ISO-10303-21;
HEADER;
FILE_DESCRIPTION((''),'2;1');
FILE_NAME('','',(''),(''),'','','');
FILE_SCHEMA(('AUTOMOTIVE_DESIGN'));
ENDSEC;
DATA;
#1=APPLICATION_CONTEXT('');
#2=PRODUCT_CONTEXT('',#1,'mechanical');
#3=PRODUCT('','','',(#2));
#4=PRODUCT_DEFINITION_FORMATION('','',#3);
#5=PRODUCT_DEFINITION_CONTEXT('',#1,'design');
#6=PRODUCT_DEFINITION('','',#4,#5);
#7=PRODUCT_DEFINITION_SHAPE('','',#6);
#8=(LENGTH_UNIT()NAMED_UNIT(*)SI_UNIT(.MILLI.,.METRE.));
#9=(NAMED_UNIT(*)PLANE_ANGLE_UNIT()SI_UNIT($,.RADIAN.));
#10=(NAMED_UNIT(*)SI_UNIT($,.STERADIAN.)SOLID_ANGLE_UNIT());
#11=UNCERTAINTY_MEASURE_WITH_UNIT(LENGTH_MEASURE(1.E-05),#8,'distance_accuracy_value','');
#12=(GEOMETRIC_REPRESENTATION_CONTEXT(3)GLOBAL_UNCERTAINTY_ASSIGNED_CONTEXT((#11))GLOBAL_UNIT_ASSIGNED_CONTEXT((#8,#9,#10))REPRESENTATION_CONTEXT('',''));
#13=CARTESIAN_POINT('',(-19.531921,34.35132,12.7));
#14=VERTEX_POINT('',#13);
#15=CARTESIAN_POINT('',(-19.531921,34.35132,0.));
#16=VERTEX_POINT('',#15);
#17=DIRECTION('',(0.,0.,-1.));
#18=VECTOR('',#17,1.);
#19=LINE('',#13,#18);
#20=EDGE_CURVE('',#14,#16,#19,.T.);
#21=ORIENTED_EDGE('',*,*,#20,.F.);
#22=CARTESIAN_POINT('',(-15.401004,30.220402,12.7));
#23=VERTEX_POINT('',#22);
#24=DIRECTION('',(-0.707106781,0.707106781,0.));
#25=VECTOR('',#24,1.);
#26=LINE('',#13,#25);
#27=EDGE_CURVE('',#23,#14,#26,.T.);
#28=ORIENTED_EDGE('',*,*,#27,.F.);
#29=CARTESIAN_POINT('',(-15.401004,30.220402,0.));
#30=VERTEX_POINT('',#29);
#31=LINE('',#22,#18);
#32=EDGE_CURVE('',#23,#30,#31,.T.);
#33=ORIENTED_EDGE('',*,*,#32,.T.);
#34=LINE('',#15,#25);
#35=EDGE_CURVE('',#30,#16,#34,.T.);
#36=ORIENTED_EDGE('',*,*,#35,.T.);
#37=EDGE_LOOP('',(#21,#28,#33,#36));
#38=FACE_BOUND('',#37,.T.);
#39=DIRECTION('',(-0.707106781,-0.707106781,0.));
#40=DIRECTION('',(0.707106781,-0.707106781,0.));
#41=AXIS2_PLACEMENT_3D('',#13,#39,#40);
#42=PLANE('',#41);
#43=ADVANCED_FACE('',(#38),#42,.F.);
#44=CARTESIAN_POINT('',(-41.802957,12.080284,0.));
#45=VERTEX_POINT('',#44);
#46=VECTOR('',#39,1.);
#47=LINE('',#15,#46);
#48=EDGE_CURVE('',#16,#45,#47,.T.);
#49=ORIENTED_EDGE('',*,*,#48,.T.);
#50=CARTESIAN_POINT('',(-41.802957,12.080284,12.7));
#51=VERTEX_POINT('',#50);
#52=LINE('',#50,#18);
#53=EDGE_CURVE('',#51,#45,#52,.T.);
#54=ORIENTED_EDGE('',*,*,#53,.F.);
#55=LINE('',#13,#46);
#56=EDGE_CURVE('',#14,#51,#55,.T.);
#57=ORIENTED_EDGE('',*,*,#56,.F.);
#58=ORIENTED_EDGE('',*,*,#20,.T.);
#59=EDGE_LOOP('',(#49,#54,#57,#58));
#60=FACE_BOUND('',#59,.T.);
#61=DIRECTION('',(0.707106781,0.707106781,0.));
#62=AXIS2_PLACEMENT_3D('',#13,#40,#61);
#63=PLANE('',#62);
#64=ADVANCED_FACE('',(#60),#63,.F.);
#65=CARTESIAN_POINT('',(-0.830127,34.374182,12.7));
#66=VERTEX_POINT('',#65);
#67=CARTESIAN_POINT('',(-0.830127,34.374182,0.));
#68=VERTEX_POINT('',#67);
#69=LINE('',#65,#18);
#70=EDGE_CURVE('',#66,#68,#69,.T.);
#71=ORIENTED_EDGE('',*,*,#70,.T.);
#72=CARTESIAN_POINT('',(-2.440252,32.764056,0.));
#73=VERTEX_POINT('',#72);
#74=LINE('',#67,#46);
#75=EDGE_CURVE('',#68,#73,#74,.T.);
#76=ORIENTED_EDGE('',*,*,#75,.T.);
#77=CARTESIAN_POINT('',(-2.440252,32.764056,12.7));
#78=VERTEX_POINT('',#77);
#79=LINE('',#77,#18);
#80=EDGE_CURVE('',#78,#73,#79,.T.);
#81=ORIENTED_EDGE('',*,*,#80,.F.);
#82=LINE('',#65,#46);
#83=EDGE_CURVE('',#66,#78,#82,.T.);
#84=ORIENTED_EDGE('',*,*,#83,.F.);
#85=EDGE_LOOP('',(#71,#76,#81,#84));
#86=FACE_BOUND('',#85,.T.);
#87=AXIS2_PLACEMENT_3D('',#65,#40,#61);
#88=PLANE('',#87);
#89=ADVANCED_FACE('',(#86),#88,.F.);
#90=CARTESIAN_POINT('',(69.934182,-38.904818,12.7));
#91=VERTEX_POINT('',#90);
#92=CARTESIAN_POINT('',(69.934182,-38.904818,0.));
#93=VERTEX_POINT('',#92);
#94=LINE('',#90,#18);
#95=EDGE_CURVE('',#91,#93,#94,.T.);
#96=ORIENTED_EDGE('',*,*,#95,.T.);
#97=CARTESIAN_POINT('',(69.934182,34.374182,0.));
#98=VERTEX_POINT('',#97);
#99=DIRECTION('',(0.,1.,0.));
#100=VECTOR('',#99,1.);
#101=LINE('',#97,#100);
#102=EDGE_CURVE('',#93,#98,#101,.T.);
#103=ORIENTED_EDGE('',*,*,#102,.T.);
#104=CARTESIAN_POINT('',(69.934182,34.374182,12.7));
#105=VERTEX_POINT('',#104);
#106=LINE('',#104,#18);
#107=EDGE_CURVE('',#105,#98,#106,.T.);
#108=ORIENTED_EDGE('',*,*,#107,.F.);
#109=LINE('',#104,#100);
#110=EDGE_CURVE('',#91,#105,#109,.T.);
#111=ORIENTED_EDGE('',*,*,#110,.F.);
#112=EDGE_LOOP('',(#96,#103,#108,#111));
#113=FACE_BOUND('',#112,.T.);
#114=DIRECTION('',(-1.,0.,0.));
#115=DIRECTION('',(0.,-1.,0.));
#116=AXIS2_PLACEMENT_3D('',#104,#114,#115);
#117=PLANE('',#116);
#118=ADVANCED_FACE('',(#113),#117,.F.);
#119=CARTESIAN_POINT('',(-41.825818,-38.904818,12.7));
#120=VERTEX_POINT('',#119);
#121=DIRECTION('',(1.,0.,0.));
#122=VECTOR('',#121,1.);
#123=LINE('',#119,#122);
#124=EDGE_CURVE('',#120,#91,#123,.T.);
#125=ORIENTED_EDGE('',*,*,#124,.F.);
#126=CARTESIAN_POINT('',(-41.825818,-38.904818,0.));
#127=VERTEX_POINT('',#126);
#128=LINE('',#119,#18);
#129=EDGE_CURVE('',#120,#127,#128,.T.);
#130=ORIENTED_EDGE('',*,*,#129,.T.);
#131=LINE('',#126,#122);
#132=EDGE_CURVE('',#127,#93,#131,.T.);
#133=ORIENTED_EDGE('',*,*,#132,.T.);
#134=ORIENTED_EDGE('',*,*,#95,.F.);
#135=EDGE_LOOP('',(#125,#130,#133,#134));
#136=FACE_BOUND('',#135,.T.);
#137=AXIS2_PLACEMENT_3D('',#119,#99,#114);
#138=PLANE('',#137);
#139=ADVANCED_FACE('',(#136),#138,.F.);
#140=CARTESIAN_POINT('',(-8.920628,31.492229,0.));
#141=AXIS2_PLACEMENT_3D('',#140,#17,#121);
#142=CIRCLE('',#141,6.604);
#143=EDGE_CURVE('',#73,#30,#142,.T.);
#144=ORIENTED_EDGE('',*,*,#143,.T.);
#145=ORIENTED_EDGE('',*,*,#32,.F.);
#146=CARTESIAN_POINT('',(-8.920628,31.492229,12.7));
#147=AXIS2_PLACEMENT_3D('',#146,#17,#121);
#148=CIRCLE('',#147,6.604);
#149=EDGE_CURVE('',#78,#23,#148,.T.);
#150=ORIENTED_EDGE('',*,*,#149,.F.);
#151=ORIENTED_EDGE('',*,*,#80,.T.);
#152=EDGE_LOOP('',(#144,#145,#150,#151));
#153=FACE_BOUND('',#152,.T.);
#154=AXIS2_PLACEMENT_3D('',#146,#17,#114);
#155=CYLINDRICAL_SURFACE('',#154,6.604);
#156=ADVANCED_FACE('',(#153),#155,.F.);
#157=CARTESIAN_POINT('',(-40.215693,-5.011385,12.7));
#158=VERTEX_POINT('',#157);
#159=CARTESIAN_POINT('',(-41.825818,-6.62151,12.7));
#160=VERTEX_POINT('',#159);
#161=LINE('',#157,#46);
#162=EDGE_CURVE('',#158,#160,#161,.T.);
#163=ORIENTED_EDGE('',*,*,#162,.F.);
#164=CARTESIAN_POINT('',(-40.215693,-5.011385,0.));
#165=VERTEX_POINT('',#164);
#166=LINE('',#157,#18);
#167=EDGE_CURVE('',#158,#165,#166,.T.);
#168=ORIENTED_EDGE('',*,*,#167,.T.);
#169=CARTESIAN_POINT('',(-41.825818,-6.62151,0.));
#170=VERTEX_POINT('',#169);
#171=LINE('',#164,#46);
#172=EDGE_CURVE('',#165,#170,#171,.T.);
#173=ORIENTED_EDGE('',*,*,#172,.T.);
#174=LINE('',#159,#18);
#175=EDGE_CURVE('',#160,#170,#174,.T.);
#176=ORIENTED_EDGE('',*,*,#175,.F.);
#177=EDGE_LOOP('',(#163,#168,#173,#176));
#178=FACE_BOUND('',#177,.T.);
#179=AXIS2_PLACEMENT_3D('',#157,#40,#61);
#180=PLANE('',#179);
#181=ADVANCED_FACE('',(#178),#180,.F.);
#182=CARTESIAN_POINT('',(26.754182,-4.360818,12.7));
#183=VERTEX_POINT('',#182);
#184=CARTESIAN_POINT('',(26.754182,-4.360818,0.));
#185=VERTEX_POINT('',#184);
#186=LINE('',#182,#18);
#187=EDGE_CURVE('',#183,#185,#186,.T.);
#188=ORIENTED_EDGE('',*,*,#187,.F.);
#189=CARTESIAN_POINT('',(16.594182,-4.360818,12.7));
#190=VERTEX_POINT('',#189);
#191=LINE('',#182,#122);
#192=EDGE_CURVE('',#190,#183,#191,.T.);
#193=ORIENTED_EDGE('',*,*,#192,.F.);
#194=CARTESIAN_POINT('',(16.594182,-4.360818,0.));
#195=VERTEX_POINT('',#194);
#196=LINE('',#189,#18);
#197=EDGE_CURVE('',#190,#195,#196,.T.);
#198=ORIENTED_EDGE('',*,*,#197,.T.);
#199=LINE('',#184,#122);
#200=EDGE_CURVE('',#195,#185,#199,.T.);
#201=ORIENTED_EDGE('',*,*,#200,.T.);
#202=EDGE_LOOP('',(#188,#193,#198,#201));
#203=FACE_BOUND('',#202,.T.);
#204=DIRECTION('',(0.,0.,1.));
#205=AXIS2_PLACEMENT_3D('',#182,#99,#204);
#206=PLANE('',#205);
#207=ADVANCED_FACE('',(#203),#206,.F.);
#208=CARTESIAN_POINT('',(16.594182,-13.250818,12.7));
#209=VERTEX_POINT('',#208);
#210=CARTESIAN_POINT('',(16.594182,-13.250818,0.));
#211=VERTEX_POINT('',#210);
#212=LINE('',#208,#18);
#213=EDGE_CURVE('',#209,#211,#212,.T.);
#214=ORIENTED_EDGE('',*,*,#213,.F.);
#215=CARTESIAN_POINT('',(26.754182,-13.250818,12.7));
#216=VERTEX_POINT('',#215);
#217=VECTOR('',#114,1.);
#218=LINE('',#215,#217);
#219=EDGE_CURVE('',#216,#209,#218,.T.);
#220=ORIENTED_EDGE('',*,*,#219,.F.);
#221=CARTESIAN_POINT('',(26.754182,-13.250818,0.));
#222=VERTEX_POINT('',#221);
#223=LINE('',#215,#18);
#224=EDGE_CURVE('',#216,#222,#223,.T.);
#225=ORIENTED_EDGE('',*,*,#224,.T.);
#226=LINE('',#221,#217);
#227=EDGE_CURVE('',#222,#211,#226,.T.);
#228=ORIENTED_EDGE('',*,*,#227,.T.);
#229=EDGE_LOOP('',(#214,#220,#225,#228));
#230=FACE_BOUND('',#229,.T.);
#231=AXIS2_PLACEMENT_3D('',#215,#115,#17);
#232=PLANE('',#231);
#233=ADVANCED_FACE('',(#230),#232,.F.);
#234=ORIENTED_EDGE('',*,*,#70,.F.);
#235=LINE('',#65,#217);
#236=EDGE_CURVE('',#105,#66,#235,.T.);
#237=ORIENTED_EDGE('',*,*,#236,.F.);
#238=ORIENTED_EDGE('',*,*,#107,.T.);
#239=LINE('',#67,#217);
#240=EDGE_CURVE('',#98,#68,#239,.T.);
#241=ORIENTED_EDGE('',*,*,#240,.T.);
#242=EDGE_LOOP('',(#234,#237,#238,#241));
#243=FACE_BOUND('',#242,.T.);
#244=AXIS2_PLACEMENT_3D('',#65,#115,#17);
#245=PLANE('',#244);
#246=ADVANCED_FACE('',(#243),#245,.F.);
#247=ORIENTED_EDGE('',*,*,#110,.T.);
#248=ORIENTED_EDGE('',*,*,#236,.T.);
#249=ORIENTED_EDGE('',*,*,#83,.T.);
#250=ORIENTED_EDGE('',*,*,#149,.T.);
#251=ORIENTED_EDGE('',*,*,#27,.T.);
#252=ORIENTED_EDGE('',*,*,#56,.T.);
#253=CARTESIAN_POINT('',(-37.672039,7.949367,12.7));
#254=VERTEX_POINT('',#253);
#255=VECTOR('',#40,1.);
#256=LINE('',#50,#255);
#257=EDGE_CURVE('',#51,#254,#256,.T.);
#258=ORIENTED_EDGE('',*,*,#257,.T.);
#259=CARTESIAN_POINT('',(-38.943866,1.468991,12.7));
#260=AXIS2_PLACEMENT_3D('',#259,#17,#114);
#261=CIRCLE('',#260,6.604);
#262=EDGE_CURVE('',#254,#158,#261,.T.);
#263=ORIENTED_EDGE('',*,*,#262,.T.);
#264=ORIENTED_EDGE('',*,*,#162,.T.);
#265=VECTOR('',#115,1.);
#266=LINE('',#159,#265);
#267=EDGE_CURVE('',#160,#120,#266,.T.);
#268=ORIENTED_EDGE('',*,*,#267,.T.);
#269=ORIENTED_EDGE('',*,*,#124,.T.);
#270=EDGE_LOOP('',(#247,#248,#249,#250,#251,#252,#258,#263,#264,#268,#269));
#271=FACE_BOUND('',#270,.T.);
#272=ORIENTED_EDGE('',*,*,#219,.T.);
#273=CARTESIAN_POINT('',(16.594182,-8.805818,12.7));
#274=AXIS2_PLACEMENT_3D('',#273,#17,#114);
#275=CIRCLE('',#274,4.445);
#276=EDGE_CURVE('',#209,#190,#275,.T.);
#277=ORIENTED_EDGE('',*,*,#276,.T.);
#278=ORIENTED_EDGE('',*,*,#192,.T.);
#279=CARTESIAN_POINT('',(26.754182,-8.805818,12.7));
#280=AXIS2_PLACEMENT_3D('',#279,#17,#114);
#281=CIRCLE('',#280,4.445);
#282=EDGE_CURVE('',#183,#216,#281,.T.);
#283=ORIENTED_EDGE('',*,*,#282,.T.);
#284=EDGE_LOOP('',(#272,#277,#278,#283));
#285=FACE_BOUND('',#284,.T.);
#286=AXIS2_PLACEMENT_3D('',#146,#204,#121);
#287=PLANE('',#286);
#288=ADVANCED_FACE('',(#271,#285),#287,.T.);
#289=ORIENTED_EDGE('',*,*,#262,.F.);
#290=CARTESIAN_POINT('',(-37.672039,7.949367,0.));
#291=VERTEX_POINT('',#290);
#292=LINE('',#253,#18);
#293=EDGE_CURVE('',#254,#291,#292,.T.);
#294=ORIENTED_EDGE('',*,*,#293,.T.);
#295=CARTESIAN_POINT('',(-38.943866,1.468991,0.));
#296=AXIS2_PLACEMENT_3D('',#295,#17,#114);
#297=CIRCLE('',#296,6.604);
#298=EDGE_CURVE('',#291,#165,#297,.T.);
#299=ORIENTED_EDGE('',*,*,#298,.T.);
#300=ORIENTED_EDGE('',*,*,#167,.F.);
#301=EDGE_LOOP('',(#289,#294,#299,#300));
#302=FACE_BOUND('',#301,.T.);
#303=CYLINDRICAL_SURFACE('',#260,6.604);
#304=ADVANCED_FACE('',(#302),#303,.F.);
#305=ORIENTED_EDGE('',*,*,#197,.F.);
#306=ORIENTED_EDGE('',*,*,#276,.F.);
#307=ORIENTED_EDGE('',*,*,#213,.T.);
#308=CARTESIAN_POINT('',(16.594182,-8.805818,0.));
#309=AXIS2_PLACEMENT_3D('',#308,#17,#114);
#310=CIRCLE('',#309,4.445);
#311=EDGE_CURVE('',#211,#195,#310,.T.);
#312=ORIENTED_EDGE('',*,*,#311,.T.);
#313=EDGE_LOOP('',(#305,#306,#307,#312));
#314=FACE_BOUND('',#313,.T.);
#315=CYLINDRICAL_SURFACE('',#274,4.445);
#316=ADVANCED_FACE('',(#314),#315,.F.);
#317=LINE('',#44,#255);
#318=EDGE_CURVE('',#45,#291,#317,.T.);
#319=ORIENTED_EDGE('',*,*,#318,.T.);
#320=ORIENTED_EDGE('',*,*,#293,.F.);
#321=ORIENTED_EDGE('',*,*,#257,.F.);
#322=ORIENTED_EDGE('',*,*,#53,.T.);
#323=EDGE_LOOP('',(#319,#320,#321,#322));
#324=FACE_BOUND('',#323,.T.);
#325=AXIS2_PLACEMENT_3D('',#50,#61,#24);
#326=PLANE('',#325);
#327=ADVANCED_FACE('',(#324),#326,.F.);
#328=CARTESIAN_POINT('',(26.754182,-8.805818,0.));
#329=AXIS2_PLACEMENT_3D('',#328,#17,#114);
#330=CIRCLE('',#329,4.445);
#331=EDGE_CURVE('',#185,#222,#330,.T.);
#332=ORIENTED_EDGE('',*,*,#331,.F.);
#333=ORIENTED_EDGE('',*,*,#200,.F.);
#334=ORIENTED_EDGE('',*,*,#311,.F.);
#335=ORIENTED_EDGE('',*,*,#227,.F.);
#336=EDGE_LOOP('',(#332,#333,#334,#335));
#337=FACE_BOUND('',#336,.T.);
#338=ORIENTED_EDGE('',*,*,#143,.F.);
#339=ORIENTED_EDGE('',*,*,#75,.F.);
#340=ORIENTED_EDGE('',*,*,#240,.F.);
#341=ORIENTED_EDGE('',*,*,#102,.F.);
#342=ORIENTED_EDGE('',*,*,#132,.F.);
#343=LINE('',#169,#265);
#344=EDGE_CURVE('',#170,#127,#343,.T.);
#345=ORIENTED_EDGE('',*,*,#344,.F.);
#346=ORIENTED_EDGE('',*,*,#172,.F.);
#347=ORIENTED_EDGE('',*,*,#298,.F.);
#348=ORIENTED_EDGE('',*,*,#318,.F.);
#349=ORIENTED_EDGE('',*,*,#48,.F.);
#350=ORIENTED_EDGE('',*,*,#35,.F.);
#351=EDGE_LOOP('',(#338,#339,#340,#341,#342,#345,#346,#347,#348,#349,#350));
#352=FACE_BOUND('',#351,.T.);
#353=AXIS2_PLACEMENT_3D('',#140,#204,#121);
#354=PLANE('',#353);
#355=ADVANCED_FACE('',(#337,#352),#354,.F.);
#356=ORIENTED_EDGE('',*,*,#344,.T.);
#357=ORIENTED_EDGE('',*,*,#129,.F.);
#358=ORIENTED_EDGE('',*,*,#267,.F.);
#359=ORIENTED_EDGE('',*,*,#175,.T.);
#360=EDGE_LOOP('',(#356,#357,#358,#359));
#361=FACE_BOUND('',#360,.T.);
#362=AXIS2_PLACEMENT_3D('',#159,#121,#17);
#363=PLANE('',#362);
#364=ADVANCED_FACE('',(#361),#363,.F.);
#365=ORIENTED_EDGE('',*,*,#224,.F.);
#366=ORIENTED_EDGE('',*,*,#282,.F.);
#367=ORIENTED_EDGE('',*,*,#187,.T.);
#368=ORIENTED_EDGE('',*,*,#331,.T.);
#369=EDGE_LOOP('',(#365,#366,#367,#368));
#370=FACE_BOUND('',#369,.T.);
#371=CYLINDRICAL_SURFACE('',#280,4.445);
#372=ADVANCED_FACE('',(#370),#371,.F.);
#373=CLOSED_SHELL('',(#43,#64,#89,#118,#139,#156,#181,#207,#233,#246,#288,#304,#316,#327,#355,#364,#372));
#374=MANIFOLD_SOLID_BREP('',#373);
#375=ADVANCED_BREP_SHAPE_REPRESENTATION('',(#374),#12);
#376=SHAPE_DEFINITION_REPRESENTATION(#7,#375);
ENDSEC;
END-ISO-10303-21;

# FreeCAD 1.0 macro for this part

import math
import FreeCAD as App
import Part
import Sketcher
from FreeCAD import Vector
Q = App.Units.Quantity

doc = App.newDocument("Part")
body = doc.addObject("PartDesign::Body", "Body")

sketch1 = body.newObject("Sketcher::SketchObject", "Sketch")
sketch1.AttachmentSupport = (doc.getObject("XY_Plane"), [""])
sketch1.MapMode = "FlatFace"
sketch1.addGeometry([
    Part.LineSegment(Vector(69.9, 34.4, 0), Vector(-0.8, 34.4, 0)),
    Part.LineSegment(Vector(-0.8, 34.4, 0), Vector(-2.4, 32.8, 0)),
    Part.ArcOfCircle(Part.Circle(Vector(-8.9, 31.5, 0), Vector(0, 0, 1), 6.6), math.radians(-169), math.radians(11)),
    Part.LineSegment(Vector(-15.4, 30.2, 0), Vector(-19.5, 34.4, 0)),
    Part.LineSegment(Vector(-19.5, 34.4, 0), Vector(-41.8, 12.1, 0)),
    Part.LineSegment(Vector(-41.8, 12.1, 0), Vector(-37.7, 7.9, 0)),
    Part.ArcOfCircle(Part.Circle(Vector(-38.9, 1.5, 0), Vector(0, 0, 1), 6.6), math.radians(-101), math.radians(79)),
    Part.LineSegment(Vector(-40.2, -5, 0), Vector(-41.8, -6.6, 0)),
    Part.LineSegment(Vector(-41.8, -6.6, 0), Vector(-41.8, -38.9, 0)),
    Part.LineSegment(Vector(-41.8, -38.9, 0), Vector(69.9, -38.9, 0)),
    Part.LineSegment(Vector(69.9, -38.9, 0), Vector(69.9, 34.4, 0)),
], False)
sketch1.addConstraint([
    Sketcher.Constraint("Coincident", 0, 2, 1, 1),
    Sketcher.Constraint("Coincident", 1, 2, 2, 2),
    Sketcher.Constraint("Coincident", 2, 1, 3, 1),
    Sketcher.Constraint("Coincident", 3, 2, 4, 1),
    Sketcher.Constraint("Coincident", 4, 2, 5, 1),
    Sketcher.Constraint("Coincident", 5, 2, 6, 2),
    Sketcher.Constraint("Coincident", 6, 1, 7, 1),
    Sketcher.Constraint("Coincident", 7, 2, 8, 1),
    Sketcher.Constraint("Coincident", 8, 2, 9, 1),
    Sketcher.Constraint("Coincident", 9, 2, 10, 1),
    Sketcher.Constraint("Coincident", 10, 2, 0, 1),
    Sketcher.Constraint("Horizontal", 0),
    Sketcher.Constraint("Vertical", 8),
    Sketcher.Constraint("Horizontal", 9),
    Sketcher.Constraint("Vertical", 10),
    Sketcher.Constraint("Equal", 2, 6),
    Sketcher.Constraint("Perpendicular", 1, 3),
    Sketcher.Constraint("Perpendicular", 3, 4),
    Sketcher.Constraint("Perpendicular", 4, 5),
    Sketcher.Constraint("Perpendicular", 5, 7),
    Sketcher.Constraint("Equal", 3, 5),
    Sketcher.Constraint("Equal", 1, 7),
    Sketcher.Constraint("Radius", 2, Q("0.26 in")),
    Sketcher.Constraint("DistanceX", 9, 1, 9, 2, Q("4.4 in")),
    Sketcher.Constraint("Angle", 1, Q("-135 deg")),
    Sketcher.Constraint("Distance", 3, Q("0.23 in")),
    Sketcher.Constraint("Distance", 4, Q("1.24 in")),
    Sketcher.Constraint("DistanceY", 10, 1, 10, 2, Q("2.885 in")),
    Sketcher.Constraint("DistanceY", 3, 2, 0, 2, Q("0.0009001 in")),
    Sketcher.Constraint("DistanceX", 7, 2, 4, 2, Q("0.0009001 in")),
    Sketcher.Constraint("DistanceX", 0, 2, 0, 1, Q("70.764308 mm")),
    Sketcher.Constraint("DistanceY", -1, 1, 2, 1, Q("30.220402 mm")),
    Sketcher.Constraint("DistanceX", 2, 3, 0, 2, Q("8.090501 mm")),
    Sketcher.Constraint("DistanceY", 7, 2, 6, 3, Q("8.090501 mm")),
    Sketcher.Constraint("DistanceX", 1, 2, -1, 1, Q("2.440252 mm")),
])
pad1 = body.newObject("PartDesign::Pad", "Pad")
pad1.Profile = sketch1
pad1.Length = Q("0.5 in")

sketch2 = body.newObject("Sketcher::SketchObject", "Sketch001")
sketch2.AttachmentSupport = (doc.getObject("XY_Plane"), [""])
sketch2.MapMode = "FlatFace"
sketch2.addGeometry([
    Part.LineSegment(Vector(16.6, -4.4, 0), Vector(26.8, -4.4, 0)),
    Part.ArcOfCircle(Part.Circle(Vector(26.8, -8.8, 0), Vector(0, 0, 1), 4.4), math.radians(-90), math.radians(90)),
    Part.LineSegment(Vector(26.8, -13.3, 0), Vector(16.6, -13.3, 0)),
    Part.ArcOfCircle(Part.Circle(Vector(16.6, -8.8, 0), Vector(0, 0, 1), 4.4), math.radians(90), math.radians(270)),
], False)
sketch2.addConstraint([
    Sketcher.Constraint("Tangent", 0, 2, 1, 2),
    Sketcher.Constraint("Tangent", 1, 1, 2, 1),
    Sketcher.Constraint("Tangent", 2, 2, 3, 2),
    Sketcher.Constraint("Tangent", 3, 1, 0, 1),
    Sketcher.Constraint("Horizontal", 0),
    Sketcher.Constraint("Horizontal", 2),
    Sketcher.Constraint("DistanceX", 0, 1, 0, 2, Q("0.4 in")),
    Sketcher.Constraint("Radius", 1, Q("0.175 in")),
    Sketcher.Constraint("DistanceX", -1, 1, 1, 3, Q("26.754182 mm")),
    Sketcher.Constraint("DistanceY", 1, 3, -1, 1, Q("8.805818 mm")),
])
pocket1 = body.newObject("PartDesign::Pocket", "Pocket")
pocket1.Profile = sketch2
pocket1.Type = "ThroughAll"
pocket1.Reversed = True

doc.recompute()
